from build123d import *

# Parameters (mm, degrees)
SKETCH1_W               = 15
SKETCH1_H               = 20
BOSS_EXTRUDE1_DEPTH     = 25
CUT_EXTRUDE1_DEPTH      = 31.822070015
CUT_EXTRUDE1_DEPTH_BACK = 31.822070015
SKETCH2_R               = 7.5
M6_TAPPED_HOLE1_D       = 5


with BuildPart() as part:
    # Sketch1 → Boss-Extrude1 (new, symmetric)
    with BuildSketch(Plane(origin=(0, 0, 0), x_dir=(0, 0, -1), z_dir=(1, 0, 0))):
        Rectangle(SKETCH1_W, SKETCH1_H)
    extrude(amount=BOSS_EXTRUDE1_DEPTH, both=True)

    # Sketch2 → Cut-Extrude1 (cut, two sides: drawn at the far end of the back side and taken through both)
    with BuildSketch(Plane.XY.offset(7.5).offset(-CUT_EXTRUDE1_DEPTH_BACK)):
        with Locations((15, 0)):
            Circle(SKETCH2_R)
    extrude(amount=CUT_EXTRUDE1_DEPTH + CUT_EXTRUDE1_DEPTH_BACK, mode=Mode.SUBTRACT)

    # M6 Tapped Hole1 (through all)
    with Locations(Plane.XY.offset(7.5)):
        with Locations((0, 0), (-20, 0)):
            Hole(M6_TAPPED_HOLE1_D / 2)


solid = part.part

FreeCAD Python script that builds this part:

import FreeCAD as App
import Part
import Sketcher
from FreeCAD import Vector
Q = App.Units.Quantity


def add_polygon(sketch, points):
    """Adds a closed chain of lines whose ends are joined by coincident constraints."""
    first, n = sketch.GeometryCount, len(points)
    for a, b in zip(points, points[1:] + points[:1]):
        sketch.addGeometry(Part.LineSegment(App.Vector(*a, 0), App.Vector(*b, 0)), False)
    for i in range(n):
        sketch.addConstraint(Sketcher.Constraint("Coincident", first + i, 2, first + (i + 1) % n, 1))

doc = App.newDocument("Part")
body = doc.addObject("PartDesign::Body", "Body")

# Sketch on YZ plane
sketch1 = doc.addObject("Sketcher::SketchObject", "Sketch")
body.addObject(sketch1)
sketch1.AttachmentSupport = (doc.YZ_Plane, [""])
sketch1.MapMode = "FlatFace"
add_polygon(sketch1, [(10, 8), (-10, 8), (-10, -8), (10, -8)])  # lines 0-3
sketch1.addConstraint([
    Sketcher.Constraint("Horizontal", 0),
    Sketcher.Constraint("Vertical", 1),
    Sketcher.Constraint("Horizontal", 2),
    Sketcher.Constraint("Vertical", 3),
    Sketcher.Constraint("Symmetric", 0, 2, 2, 2, -1, 1),
    Sketcher.Constraint("DistanceX", 0, 2, 0, 1, Q("20 mm")),
    Sketcher.Constraint("DistanceY", 1, 2, 1, 1, Q("15 mm")),
])
pad1 = doc.addObject("PartDesign::Pad", "Pad")
body.addObject(pad1)
pad1.Profile = sketch1
pad1.Length = 50
pad1.Midplane = True

# Sketch on XY plane
sketch2 = doc.addObject("Sketcher::SketchObject", "Sketch001")
body.addObject(sketch2)
sketch2.AttachmentSupport = (doc.XY_Plane, [""])
sketch2.MapMode = "FlatFace"
sketch2.AttachmentOffset = App.Placement(Vector(0, 0, 7.5), App.Rotation())
sketch2.addGeometry(Part.Circle(Vector(15, 0, 0), Vector(0, 0, 1), 8), False)
sketch2.addConstraint([
    Sketcher.Constraint("PointOnObject", 0, 3, -1),
    Sketcher.Constraint("Diameter", 0, Q("15 mm")),
    Sketcher.Constraint("DistanceX", -1, 1, 0, 3, Q("15 mm")),
])
pocket1 = doc.addObject("PartDesign::Pocket", "Pocket")
body.addObject(pocket1)
pocket1.Profile = sketch2
pocket1.Type = "ThroughAll"
pocket1.Midplane = True

# Sketch on XY plane
sketch3 = doc.addObject("Sketcher::SketchObject", "Sketch002")
body.addObject(sketch3)
sketch3.AttachmentSupport = (doc.XY_Plane, [""])
sketch3.MapMode = "FlatFace"
sketch3.AttachmentOffset = App.Placement(Vector(0, 0, 7.5), App.Rotation())
sketch3.addGeometry([
    Part.Circle(Vector(0, 0, 0), Vector(0, 0, 1), 2.5),
    Part.Circle(Vector(-20, 0, 0), Vector(0, 0, 1), 2.5),
], False)
sketch3.addConstraint([
    Sketcher.Constraint("Coincident", 0, 3, -1, 1),
    Sketcher.Constraint("Equal", 0, 1),
    Sketcher.Constraint("PointOnObject", 1, 3, -1),
    Sketcher.Constraint("Diameter", 0, Q("5 mm")),
    Sketcher.Constraint("DistanceX", 1, 3, -1, 1, Q("20 mm")),
])
doc.recompute()
hole = doc.addObject("PartDesign::Hole", "Hole")
body.addObject(hole)
hole.Profile = sketch3
hole.ThreadType = "None"
hole.Diameter = 5
hole.DepthType = "ThroughAll"

doc.recompute()
